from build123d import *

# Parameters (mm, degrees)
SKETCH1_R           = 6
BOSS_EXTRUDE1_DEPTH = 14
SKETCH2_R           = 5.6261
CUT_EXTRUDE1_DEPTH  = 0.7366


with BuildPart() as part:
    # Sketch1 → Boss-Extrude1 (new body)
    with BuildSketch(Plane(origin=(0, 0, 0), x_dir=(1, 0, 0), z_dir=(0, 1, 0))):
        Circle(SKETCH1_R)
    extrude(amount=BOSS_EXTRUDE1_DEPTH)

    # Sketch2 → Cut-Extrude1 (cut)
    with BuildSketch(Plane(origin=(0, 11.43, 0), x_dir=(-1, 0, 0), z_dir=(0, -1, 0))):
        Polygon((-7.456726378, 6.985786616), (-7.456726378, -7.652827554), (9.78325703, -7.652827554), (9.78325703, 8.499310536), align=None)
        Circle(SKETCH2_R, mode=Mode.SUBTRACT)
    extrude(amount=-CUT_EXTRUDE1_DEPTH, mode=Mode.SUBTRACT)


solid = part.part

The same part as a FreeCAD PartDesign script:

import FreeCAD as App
import Part
import Sketcher
from FreeCAD import Vector
Q = App.Units.Quantity


def add_polygon(sketch, points):
    """Adds a closed chain of lines whose ends are joined by coincident constraints."""
    first, n = sketch.GeometryCount, len(points)
    for a, b in zip(points, points[1:] + points[:1]):
        sketch.addGeometry(Part.LineSegment(App.Vector(*a, 0), App.Vector(*b, 0)), False)
    for i in range(n):
        sketch.addConstraint(Sketcher.Constraint("Coincident", first + i, 2, first + (i + 1) % n, 1))

doc = App.newDocument("Part")
body = doc.addObject("PartDesign::Body", "Body")

# Sketch on XZ plane
sketch1 = body.newObject("Sketcher::SketchObject", "Sketch")
sketch1.AttachmentSupport = (doc.getObject("XZ_Plane"), [""])
sketch1.MapMode = "FlatFace"
sketch1.addGeometry(Part.Circle(Vector(0, 0, 0), Vector(0, 0, 1), 6), False)
sketch1.addConstraint([
    Sketcher.Constraint("Coincident", 0, 3, -1, 1),
    Sketcher.Constraint("Diameter", 0, Q("12 mm")),
])
pad1 = body.newObject("PartDesign::Pad", "Pad")
pad1.Profile = sketch1
pad1.Length = 14
pad1.Reversed = True

# Sketch on XZ plane
sketch2 = body.newObject("Sketcher::SketchObject", "Sketch001")
sketch2.AttachmentSupport = (doc.getObject("XZ_Plane"), [""])
sketch2.MapMode = "FlatFace"
sketch2.AttachmentOffset = App.Placement(Vector(0, 0, -11.43), App.Rotation())
add_polygon(sketch2, [(7, -7), (7, 8), (-10, 8), (-10, -8)])  # lines 0-3
sketch2.addGeometry(Part.Circle(Vector(0, 0, 0), Vector(0, 0, 1), 6), False)  # 4
sketch2.addConstraint([
    Sketcher.Constraint("Vertical", 0),
    Sketcher.Constraint("Horizontal", 1),
    Sketcher.Constraint("Vertical", 2),
    Sketcher.Constraint("Coincident", 4, 3, -1, 1),
    Sketcher.Constraint("Diameter", 4, Q("11.2522 mm")),
    Sketcher.Constraint("DistanceY", 2, 2, 2, 1, Q("16.152138 mm")),
    Sketcher.Constraint("DistanceX", 1, 2, 1, 1, Q("17.239983 mm")),
    Sketcher.Constraint("DistanceY", 0, 1, 0, 2, Q("14.638614 mm")),
    Sketcher.Constraint("DistanceY", 2, 2, -1, 1, Q("8.499311 mm")),
    Sketcher.Constraint("DistanceX", -1, 1, 0, 2, Q("7.456726 mm")),
])
pocket1 = body.newObject("PartDesign::Pocket", "Pocket")
pocket1.Profile = sketch2
pocket1.Length = 0.7366

doc.recompute()
